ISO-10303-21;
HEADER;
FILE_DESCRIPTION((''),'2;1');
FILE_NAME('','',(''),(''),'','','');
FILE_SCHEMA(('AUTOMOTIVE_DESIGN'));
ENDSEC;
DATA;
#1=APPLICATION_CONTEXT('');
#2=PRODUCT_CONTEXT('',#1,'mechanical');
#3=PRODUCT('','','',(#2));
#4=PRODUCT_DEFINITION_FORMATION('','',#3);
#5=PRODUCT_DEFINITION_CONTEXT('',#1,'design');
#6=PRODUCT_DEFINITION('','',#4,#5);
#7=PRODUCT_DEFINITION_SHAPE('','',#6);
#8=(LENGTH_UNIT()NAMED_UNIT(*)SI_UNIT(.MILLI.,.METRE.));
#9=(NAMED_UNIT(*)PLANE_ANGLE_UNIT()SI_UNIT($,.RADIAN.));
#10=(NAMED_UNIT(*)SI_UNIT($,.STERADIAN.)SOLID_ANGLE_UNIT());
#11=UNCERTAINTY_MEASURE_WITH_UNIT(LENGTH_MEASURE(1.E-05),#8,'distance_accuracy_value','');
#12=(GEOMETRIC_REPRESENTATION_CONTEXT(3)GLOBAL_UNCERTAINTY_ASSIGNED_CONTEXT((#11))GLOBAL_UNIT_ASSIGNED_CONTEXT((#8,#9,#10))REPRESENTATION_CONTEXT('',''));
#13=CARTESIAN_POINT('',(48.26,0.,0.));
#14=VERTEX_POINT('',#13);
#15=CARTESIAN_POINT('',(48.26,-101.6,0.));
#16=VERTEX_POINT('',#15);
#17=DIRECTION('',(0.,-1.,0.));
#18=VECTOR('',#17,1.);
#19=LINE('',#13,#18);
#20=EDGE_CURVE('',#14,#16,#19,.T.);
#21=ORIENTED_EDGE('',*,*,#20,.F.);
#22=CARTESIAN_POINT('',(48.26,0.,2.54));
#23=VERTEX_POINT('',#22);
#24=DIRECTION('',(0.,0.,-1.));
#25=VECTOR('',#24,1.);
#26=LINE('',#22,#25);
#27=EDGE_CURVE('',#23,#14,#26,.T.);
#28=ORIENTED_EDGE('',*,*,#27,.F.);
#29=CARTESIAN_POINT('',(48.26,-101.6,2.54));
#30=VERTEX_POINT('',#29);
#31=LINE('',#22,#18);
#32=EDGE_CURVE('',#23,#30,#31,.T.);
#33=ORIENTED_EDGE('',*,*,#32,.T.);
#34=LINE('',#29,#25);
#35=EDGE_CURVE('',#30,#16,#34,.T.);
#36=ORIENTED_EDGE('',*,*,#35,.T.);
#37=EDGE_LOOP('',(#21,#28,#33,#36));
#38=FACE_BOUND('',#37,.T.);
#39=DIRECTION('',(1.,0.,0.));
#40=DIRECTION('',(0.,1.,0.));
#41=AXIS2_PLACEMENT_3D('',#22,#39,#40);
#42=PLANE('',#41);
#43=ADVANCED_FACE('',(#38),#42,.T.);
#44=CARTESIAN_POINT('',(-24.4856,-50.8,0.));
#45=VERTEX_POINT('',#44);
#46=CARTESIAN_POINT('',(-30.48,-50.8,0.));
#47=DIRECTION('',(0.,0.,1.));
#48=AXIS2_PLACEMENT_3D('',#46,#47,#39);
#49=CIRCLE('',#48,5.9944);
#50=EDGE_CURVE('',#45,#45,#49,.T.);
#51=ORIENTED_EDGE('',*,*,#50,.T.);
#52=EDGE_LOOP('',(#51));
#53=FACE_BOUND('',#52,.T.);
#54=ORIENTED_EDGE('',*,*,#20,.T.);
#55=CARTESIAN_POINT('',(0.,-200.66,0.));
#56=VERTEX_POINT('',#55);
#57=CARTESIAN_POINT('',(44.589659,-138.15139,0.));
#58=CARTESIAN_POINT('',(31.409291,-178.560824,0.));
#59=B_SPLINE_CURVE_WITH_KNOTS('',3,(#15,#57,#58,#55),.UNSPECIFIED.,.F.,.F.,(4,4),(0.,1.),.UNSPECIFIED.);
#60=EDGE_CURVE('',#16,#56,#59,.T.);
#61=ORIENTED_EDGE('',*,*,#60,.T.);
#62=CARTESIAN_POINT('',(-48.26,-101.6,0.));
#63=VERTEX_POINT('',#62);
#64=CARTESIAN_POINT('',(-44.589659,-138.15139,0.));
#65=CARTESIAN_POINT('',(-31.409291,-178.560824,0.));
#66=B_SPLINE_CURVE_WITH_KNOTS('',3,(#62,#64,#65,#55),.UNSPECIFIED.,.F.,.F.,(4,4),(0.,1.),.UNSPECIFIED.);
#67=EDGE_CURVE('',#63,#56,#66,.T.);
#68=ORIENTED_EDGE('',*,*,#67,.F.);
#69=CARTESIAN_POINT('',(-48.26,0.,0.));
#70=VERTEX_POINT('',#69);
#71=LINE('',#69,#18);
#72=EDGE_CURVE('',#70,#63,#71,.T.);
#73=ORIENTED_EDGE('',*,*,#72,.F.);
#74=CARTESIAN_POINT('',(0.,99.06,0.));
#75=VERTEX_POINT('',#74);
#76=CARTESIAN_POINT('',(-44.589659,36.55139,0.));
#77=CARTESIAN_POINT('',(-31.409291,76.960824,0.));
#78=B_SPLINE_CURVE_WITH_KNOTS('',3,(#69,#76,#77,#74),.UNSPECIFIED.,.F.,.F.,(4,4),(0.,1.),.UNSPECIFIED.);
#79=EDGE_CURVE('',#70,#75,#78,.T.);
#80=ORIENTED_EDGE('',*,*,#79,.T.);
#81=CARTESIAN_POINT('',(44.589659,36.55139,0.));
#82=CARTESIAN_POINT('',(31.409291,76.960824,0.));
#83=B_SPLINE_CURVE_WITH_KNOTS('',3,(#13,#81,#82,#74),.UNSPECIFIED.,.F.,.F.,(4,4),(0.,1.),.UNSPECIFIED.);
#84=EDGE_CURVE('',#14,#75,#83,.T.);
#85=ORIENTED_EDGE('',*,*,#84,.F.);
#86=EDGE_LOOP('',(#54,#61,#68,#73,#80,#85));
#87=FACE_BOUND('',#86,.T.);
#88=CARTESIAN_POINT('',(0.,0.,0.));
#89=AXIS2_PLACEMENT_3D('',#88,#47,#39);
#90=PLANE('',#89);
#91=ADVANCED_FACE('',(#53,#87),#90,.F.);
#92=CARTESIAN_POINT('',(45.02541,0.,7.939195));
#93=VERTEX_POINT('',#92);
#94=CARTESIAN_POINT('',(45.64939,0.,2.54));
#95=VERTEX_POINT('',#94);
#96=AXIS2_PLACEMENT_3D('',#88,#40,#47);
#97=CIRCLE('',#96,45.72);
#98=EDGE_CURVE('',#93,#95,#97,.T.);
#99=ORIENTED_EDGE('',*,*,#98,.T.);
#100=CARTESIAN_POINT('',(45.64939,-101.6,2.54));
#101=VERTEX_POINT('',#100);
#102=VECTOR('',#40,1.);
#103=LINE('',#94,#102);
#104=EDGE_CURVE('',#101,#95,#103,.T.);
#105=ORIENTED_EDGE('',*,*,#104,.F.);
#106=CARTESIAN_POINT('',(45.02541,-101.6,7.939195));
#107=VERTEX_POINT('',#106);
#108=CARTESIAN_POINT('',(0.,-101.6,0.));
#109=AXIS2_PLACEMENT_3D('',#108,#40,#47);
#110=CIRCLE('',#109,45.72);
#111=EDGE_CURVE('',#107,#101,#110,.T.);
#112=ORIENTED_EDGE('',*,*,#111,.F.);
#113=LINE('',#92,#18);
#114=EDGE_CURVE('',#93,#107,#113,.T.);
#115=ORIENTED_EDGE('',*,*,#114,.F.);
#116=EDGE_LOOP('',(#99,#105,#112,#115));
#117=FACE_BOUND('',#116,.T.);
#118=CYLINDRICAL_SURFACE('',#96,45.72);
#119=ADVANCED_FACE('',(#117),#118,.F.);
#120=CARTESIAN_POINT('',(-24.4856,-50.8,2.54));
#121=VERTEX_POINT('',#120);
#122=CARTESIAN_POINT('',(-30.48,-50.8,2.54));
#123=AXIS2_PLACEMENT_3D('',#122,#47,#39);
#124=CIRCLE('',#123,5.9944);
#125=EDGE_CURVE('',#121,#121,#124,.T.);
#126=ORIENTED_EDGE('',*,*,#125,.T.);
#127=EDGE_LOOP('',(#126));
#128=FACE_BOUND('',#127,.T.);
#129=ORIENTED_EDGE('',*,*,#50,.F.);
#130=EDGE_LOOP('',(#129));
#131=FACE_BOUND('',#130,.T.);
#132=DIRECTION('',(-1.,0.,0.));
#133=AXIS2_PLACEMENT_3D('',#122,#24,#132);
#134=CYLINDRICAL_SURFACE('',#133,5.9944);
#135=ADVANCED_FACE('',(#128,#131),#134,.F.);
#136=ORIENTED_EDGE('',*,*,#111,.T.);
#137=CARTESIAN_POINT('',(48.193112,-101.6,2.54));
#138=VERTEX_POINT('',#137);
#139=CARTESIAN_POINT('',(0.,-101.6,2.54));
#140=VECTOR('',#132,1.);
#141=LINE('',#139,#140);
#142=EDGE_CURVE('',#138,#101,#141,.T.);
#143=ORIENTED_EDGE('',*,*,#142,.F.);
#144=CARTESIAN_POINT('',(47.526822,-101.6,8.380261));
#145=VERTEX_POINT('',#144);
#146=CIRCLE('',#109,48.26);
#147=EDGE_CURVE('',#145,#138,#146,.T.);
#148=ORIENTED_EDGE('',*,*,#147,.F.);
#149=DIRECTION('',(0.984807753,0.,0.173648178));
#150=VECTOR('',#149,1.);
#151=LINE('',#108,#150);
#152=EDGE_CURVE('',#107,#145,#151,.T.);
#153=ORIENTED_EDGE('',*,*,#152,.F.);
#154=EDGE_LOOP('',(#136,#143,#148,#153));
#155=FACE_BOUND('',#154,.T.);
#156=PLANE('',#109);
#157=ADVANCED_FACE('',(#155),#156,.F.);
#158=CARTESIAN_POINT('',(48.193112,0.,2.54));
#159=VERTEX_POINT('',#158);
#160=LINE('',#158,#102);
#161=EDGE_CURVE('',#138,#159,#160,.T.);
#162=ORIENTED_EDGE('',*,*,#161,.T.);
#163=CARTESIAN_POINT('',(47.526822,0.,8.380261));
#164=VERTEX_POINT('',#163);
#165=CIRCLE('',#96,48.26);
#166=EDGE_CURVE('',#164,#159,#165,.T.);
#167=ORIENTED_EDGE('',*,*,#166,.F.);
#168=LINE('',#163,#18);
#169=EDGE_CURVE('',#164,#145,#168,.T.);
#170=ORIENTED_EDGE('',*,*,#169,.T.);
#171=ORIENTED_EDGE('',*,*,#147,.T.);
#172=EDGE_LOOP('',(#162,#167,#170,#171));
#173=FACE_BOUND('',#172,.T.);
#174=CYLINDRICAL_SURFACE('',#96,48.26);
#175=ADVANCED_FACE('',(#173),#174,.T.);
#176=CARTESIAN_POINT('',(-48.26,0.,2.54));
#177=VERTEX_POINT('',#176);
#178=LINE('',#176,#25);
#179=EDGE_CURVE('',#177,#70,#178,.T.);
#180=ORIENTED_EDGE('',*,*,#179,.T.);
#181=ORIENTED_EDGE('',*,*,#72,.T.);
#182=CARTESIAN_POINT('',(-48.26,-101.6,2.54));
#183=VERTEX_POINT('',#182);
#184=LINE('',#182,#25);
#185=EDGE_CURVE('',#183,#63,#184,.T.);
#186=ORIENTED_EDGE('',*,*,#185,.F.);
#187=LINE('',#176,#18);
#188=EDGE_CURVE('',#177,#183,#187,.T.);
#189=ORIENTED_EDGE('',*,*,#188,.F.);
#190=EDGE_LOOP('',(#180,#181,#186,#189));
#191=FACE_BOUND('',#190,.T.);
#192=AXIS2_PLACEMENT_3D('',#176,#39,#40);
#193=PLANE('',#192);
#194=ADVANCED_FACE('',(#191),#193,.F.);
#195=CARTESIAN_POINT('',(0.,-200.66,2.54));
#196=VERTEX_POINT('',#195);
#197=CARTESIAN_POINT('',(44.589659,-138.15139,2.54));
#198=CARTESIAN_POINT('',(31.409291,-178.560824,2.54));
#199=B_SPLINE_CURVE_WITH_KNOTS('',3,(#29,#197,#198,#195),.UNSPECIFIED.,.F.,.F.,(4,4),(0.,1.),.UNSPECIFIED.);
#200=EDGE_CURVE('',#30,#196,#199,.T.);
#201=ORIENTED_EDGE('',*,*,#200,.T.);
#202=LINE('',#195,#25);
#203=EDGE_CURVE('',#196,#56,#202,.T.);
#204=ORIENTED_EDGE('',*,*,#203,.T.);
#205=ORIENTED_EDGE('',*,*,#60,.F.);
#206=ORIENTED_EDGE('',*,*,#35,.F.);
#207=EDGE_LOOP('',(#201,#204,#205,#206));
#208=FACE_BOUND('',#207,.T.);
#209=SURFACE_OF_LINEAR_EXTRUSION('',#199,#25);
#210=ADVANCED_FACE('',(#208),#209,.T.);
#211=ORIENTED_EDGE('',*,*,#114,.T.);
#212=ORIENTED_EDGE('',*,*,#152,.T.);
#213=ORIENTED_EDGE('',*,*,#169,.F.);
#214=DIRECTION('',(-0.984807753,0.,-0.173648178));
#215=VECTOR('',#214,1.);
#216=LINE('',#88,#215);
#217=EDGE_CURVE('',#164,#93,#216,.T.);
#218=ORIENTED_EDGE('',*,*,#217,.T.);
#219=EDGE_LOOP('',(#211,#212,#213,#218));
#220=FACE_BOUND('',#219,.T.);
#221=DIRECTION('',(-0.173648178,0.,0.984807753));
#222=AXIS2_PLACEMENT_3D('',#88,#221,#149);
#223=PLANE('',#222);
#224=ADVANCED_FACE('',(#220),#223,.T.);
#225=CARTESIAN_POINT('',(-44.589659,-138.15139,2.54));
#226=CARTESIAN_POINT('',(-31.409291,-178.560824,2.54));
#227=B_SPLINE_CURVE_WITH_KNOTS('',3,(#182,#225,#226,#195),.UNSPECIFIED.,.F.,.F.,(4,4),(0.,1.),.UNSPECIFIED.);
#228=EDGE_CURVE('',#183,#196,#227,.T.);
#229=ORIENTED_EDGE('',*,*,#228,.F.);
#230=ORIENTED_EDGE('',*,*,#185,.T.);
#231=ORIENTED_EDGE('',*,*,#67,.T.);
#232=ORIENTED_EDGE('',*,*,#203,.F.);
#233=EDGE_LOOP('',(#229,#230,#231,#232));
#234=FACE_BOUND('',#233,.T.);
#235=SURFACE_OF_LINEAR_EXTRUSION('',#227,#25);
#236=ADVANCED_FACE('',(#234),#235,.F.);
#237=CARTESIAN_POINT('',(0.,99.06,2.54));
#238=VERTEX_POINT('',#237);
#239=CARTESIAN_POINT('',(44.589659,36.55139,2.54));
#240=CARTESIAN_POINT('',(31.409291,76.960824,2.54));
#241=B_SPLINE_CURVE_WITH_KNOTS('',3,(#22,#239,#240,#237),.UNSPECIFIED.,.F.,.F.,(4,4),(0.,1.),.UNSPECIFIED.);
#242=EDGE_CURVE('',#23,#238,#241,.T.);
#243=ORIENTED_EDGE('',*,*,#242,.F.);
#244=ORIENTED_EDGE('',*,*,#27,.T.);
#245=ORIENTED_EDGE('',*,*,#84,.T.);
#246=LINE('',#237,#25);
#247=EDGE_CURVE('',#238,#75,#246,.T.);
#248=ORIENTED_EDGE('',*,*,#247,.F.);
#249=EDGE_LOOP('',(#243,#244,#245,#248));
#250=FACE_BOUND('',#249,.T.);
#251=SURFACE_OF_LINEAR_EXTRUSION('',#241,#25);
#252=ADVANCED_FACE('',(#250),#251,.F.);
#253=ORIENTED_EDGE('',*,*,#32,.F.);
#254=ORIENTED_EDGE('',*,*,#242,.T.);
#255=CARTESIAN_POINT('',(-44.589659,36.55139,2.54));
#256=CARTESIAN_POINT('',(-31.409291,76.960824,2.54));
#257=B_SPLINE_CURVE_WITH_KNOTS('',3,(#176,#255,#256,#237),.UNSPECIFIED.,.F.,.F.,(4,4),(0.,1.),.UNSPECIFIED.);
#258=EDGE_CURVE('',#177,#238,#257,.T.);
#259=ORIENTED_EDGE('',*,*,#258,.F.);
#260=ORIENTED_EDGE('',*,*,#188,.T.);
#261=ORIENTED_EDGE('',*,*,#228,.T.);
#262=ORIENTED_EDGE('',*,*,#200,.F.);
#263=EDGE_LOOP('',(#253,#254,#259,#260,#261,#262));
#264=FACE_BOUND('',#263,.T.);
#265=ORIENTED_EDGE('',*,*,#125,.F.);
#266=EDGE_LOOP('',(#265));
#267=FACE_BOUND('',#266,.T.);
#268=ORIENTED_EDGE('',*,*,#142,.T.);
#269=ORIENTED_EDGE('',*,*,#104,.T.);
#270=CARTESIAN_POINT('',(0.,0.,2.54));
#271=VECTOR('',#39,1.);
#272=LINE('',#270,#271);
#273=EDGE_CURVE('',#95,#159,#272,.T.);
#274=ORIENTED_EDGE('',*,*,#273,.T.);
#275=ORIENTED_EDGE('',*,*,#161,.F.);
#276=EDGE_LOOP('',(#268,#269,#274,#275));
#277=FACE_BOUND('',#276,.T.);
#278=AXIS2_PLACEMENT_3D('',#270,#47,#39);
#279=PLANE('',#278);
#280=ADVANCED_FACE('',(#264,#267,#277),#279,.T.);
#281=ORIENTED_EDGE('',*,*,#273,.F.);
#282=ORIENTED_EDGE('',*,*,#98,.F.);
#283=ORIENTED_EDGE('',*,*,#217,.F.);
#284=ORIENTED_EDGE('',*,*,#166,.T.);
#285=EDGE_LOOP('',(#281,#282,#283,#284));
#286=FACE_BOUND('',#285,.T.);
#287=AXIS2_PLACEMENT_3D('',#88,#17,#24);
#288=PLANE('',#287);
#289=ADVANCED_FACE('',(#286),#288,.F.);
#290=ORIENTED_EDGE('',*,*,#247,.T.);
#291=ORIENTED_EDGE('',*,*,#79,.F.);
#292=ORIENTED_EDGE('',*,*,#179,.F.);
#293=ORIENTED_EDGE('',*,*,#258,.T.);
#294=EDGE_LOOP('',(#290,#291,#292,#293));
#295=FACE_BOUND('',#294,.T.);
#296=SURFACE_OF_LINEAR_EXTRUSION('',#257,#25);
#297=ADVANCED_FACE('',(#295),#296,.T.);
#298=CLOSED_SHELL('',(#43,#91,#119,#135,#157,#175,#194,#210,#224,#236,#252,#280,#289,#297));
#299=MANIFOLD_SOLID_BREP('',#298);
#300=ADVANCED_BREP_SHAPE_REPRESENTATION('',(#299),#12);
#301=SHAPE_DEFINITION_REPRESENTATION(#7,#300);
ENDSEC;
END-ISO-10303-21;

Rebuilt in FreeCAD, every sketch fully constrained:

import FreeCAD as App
import Part
import Sketcher

V = App.Vector
Q = App.Units.Quantity

doc = App.newDocument("Part")
body = doc.addObject("PartDesign::Body", "Body")

# Sketch on XY plane
sketch1 = body.newObject("Sketcher::SketchObject", "Sketch")
sketch1.AttachmentSupport = (doc.getObject("XY_Plane"), [""])
sketch1.MapMode = "FlatFace"
sketch1.addGeometry([
    Part.LineSegment(V(-48.26, 0, 0), V(-48.26, -101.6, 0)),  # 0
    Part.BSplineCurve([V(-48.26, -101.6, 0), V(-44.589659, -138.15139, 0), V(-31.409291, -178.560824, 0), V(0, -200.66, 0)], [4, 4], [0, 1], False, 3, [1, 1, 1, 1], False),  # 1
    Part.BSplineCurve([V(48.26, -101.6, 0), V(44.589659, -138.15139, 0), V(31.409291, -178.560824, 0), V(0, -200.66, 0)], [4, 4], [0, 1], False, 3, [1, 1, 1, 1], False),  # 2
    Part.LineSegment(V(48.26, -101.6, 0), V(48.26, 0, 0)),  # 3
    Part.BSplineCurve([V(48.26, 0, 0), V(44.589659, 36.55139, 0), V(31.409291, 76.960824, 0), V(0, 99.06, 0)], [4, 4], [0, 1], False, 3, [1, 1, 1, 1], False),  # 4
    Part.BSplineCurve([V(-48.26, 0, 0), V(-44.589659, 36.55139, 0), V(-31.409291, 76.960824, 0), V(0, 99.06, 0)], [4, 4], [0, 1], False, 3, [1, 1, 1, 1], False),  # 5
    Part.Circle(V(-30.48, -50.8, 0), V(0, 0, 1), 5.9944),  # 6
], False)
sketch1.addConstraint([
    Sketcher.Constraint("Block", 1),
    Sketcher.Constraint("Block", 2),
    Sketcher.Constraint("Block", 4),
    Sketcher.Constraint("Block", 5),
    Sketcher.Constraint("Coincident", 0, 2, 1, 1),
    Sketcher.Constraint("Coincident", 2, 1, 3, 1),
    Sketcher.Constraint("Coincident", 3, 2, 4, 1),
    Sketcher.Constraint("Coincident", 5, 1, 0, 1),
    Sketcher.Constraint("Diameter", 6, Q("0.472 in")),
    Sketcher.Constraint("DistanceY", 6, 3, -1, 1, Q("2 in")),
    Sketcher.Constraint("DistanceX", 6, 3, -1, 1, Q("1.2 in")),
])
pad1 = body.newObject("PartDesign::Pad", "Pad")
pad1.Profile = sketch1
pad1.Length = Q("0.1 in")

# Sketch on XY plane
sketch2 = body.newObject("Sketcher::SketchObject", "Sketch001")
sketch2.AttachmentSupport = (doc.getObject("XY_Plane"), [""])
sketch2.MapMode = "FlatFace"
sketch2.addGeometry([
    Part.LineSegment(V(45.7, 0, 0), V(45.7, -101.6, 0)),
    Part.LineSegment(V(45.7, -101.6, 0), V(48.3, -101.6, 0)),
    Part.LineSegment(V(48.3, -101.6, 0), V(48.3, 0, 0)),
    Part.LineSegment(V(48.3, 0, 0), V(45.7, 0, 0)),
], False)
sketch2.addConstraint([
    Sketcher.Constraint("Coincident", 0, 2, 1, 1),
    Sketcher.Constraint("Coincident", 1, 2, 2, 1),
    Sketcher.Constraint("Coincident", 2, 2, 3, 1),
    Sketcher.Constraint("Coincident", 3, 2, 0, 1),
    Sketcher.Constraint("Vertical", 0),
    Sketcher.Constraint("Horizontal", 1),
    Sketcher.Constraint("Vertical", 2),
    Sketcher.Constraint("Horizontal", 3),
    Sketcher.Constraint("PointOnObject", 2, 2, -1),
    Sketcher.Constraint("DistanceY", 0, 2, 0, 1, Q("4 in")),
    Sketcher.Constraint("DistanceX", 1, 1, 1, 2, Q("0.1 in")),
    Sketcher.Constraint("DistanceX", -1, 1, 0, 2, Q("1.8 in")),
])
revolution = body.newObject("PartDesign::Revolution", "Revolution")
revolution.Profile = sketch2
revolution.ReferenceAxis = (sketch2, ["V_Axis"])
revolution.Angle = 10
revolution.Reversed = True

doc.recompute()
